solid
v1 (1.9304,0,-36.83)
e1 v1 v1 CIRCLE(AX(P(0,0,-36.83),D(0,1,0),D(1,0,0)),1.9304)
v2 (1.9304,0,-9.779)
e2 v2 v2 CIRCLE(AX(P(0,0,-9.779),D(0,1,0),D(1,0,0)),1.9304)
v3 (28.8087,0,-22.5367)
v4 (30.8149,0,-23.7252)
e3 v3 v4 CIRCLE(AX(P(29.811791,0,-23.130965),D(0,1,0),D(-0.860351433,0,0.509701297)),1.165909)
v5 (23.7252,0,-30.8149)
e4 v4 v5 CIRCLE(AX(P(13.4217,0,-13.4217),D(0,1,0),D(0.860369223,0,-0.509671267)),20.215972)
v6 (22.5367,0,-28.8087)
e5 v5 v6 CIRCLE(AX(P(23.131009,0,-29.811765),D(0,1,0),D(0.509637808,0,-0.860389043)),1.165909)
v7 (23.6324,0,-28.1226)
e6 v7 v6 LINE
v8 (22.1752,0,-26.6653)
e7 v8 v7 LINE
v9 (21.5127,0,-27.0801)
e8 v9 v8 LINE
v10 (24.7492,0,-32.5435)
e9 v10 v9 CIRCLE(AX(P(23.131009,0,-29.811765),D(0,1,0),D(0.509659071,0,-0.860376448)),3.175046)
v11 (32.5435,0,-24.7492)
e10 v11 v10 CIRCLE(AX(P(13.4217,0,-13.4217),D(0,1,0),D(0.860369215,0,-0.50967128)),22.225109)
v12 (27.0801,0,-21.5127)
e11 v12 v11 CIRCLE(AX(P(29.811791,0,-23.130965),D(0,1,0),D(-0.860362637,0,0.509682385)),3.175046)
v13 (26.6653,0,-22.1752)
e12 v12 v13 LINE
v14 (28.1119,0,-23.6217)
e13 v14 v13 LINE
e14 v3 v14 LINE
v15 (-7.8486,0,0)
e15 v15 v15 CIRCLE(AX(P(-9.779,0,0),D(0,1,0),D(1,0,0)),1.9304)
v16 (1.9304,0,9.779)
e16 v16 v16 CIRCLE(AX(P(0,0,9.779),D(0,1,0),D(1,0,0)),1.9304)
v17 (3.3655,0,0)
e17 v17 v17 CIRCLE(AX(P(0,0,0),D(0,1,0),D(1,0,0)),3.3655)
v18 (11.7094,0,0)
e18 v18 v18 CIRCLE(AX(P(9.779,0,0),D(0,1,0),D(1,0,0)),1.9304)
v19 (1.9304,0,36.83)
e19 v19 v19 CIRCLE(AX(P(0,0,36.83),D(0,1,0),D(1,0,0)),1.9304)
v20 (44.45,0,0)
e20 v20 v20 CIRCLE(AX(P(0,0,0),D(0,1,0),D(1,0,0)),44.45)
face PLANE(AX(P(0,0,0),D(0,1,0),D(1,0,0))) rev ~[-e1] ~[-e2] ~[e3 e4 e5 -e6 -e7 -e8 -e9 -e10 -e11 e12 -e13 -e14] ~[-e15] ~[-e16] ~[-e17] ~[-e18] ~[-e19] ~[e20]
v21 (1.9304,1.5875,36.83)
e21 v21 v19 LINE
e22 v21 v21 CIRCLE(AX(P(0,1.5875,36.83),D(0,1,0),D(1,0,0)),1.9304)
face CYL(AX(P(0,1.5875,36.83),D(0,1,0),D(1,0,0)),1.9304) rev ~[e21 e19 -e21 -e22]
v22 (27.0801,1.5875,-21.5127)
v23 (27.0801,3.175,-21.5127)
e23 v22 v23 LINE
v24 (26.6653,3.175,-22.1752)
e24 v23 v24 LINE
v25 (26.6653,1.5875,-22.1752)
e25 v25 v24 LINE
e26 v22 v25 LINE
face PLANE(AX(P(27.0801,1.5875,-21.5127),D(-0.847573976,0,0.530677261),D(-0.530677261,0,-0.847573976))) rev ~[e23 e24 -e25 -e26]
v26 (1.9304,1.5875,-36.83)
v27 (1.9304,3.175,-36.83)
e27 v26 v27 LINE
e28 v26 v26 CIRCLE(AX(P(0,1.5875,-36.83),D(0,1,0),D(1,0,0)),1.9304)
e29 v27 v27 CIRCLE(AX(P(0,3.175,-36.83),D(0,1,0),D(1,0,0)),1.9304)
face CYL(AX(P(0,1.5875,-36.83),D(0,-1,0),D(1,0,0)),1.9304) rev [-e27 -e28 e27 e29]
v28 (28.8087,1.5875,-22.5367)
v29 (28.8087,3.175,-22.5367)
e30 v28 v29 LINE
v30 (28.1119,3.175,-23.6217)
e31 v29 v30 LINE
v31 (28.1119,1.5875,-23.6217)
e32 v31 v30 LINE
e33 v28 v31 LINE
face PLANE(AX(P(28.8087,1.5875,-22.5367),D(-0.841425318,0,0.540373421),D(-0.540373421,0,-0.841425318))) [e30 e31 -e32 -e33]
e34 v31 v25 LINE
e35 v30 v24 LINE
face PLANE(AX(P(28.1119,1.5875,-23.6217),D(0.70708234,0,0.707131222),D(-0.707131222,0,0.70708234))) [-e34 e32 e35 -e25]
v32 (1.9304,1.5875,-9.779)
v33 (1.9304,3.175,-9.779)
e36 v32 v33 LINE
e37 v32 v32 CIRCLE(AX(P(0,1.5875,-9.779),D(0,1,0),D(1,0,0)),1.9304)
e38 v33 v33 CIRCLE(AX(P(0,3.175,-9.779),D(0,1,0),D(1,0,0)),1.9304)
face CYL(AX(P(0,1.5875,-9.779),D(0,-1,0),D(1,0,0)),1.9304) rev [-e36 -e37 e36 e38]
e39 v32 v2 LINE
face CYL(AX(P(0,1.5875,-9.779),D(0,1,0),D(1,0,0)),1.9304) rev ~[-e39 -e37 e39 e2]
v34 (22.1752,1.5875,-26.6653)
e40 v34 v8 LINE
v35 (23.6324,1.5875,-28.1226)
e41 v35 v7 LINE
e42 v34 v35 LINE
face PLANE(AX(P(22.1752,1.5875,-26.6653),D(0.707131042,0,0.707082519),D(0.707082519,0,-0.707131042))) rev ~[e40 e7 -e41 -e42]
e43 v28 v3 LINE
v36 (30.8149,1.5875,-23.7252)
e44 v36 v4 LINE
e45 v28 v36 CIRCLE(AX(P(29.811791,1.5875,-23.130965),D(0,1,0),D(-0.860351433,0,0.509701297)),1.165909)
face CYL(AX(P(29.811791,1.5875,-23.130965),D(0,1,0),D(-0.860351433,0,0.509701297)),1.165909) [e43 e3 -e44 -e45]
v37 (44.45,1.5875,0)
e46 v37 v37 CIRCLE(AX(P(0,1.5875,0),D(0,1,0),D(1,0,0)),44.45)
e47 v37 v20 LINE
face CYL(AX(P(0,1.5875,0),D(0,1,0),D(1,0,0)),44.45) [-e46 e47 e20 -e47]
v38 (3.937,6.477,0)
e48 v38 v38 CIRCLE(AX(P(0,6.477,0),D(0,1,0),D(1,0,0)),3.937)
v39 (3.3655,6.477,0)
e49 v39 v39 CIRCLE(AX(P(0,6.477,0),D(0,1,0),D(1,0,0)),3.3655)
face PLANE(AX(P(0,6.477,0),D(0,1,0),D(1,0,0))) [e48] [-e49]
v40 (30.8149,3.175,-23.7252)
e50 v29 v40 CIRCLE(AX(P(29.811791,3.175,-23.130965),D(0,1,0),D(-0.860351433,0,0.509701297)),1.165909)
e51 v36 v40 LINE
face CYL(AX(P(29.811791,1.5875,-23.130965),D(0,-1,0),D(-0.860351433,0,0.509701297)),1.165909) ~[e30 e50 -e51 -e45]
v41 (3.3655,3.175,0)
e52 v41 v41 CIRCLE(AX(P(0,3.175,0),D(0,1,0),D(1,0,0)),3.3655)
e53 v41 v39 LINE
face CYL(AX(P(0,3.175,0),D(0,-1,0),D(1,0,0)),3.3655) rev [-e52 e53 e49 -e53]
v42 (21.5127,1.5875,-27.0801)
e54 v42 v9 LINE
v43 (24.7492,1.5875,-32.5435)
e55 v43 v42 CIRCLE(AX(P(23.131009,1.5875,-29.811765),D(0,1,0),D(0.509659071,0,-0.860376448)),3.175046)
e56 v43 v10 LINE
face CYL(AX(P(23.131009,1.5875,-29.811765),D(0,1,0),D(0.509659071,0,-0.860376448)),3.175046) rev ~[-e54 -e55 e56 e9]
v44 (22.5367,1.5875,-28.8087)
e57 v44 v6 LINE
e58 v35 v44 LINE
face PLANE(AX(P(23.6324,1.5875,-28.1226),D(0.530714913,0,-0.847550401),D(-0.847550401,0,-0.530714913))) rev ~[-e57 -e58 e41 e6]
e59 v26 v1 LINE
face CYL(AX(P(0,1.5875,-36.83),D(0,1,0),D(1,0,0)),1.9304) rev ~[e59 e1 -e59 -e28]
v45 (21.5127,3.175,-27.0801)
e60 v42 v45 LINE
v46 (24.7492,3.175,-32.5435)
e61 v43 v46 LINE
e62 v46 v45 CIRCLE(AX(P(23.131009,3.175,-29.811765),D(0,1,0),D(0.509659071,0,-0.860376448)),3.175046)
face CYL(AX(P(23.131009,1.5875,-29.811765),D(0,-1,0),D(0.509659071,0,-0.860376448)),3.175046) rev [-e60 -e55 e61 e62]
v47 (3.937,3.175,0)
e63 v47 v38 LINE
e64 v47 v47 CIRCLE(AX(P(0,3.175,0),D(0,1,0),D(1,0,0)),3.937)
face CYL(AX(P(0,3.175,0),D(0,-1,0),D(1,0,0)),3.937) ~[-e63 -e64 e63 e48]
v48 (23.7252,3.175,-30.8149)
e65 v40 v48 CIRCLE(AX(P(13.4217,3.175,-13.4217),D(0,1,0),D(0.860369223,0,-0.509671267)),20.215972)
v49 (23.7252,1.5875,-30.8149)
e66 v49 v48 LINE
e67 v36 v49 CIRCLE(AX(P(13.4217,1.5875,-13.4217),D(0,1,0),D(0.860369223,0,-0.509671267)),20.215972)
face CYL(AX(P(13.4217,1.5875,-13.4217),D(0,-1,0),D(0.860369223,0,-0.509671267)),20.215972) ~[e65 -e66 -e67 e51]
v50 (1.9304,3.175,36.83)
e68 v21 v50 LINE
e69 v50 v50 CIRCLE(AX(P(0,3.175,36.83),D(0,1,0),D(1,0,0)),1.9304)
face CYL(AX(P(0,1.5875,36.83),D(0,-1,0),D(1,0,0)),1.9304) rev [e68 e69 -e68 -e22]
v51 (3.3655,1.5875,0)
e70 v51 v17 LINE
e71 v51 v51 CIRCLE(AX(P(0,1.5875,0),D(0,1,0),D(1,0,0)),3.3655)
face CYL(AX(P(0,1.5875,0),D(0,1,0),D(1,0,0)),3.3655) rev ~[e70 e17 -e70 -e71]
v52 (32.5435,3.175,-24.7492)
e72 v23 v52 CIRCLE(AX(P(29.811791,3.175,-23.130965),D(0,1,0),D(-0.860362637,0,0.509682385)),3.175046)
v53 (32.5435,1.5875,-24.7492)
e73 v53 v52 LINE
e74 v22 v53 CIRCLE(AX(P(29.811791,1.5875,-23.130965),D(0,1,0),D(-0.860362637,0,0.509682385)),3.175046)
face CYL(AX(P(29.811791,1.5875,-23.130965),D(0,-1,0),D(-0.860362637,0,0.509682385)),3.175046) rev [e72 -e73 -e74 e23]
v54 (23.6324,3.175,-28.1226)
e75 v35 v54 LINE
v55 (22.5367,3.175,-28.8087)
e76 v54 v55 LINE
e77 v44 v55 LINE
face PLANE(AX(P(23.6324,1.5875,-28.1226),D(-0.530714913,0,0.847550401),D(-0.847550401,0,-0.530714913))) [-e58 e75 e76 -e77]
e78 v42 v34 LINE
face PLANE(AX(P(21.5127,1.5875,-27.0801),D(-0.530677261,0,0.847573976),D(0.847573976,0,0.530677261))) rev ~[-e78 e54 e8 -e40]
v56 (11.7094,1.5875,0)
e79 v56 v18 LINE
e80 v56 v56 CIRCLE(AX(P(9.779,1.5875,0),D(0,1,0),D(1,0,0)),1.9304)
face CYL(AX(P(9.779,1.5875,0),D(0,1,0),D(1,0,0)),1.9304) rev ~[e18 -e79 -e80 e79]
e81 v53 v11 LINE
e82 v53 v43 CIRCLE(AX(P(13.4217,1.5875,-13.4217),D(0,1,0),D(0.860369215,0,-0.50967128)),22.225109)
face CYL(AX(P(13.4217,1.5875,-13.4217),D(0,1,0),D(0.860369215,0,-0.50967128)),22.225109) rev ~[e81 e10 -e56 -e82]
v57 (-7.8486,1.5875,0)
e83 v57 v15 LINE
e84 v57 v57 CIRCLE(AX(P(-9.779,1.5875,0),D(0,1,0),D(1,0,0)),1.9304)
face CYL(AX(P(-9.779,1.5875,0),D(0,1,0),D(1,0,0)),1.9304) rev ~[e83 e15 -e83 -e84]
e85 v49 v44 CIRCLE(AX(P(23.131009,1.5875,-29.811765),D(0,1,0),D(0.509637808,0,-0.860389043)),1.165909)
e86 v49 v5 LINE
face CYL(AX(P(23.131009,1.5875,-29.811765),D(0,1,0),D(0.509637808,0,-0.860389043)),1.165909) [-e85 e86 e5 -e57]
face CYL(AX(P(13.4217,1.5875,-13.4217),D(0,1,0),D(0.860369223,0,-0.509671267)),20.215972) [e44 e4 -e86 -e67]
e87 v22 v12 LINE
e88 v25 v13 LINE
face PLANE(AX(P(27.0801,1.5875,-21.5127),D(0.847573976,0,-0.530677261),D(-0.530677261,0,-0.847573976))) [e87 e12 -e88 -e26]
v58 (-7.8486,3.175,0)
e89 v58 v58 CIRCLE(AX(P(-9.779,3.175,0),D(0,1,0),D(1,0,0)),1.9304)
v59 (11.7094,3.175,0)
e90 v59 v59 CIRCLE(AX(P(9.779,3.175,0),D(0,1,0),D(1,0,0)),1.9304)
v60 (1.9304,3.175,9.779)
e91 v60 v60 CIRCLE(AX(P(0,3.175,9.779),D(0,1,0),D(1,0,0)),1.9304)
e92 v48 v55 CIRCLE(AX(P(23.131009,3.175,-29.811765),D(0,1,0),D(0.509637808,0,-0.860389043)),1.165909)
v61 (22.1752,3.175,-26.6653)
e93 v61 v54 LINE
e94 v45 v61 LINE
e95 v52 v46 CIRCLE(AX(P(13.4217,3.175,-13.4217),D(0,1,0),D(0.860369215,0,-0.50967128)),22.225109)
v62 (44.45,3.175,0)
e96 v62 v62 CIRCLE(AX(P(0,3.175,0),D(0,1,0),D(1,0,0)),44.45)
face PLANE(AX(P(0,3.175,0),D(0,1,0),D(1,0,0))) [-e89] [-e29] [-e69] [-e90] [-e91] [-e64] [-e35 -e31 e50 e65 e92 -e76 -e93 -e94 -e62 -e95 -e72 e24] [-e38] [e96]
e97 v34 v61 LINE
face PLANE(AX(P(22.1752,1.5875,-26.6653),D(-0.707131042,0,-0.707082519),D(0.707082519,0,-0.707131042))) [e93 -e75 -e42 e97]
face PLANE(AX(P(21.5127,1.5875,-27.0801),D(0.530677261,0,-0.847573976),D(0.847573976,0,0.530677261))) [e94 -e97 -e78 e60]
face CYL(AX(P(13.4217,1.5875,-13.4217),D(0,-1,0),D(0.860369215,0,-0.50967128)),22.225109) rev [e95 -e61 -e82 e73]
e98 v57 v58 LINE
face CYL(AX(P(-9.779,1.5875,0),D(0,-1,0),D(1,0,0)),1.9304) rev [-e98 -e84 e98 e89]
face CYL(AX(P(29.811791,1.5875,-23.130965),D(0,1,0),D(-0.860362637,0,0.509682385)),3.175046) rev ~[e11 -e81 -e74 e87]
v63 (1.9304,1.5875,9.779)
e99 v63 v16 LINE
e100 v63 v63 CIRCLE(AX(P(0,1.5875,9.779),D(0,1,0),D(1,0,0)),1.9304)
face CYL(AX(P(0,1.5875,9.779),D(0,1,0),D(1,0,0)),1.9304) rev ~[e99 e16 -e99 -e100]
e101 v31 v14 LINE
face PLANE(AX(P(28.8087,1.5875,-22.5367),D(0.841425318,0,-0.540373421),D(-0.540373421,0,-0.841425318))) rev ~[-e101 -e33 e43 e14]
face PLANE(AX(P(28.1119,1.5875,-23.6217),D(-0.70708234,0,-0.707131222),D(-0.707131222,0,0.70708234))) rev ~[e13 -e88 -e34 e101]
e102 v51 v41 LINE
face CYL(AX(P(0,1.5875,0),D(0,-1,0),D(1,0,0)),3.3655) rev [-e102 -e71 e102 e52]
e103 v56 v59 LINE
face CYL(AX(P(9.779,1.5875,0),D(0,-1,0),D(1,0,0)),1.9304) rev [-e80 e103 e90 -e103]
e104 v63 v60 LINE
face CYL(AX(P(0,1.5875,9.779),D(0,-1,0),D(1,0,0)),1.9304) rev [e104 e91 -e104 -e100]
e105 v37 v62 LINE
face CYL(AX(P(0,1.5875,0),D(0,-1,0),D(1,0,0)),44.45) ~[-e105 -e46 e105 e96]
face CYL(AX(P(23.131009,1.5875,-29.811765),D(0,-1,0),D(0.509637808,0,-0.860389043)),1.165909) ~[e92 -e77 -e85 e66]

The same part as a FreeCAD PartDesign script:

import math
import FreeCAD as App
import Part
import Sketcher
Q = App.Units.Quantity

doc = App.newDocument("Part")
body = doc.addObject("PartDesign::Body", "Body")

sketch1 = body.newObject("Sketcher::SketchObject", "Sketch")
sketch1.AttachmentSupport = (doc.getObject("XZ_Plane"), [""])
sketch1.MapMode = "FlatFace"
sketch1.AttachmentOffset = App.Placement(App.Vector(0, 0, -0.0625 * 25.4), App.Rotation())
sketch1.addGeometry([
    Part.Circle(App.Vector(0, 0, 0), App.Vector(0, 0, 1), 44.45),
    Part.Circle(App.Vector(0, 36.83, 0), App.Vector(0, 0, 1), 1.9304),
    Part.Circle(App.Vector(0, 9.779, 0), App.Vector(0, 0, 1), 1.9304),
    Part.Circle(App.Vector(-9.779, 0, 0), App.Vector(0, 0, 1), 1.9304),
    Part.Circle(App.Vector(0, 0, 0), App.Vector(0, 0, 1), 3.3655),
    Part.Circle(App.Vector(9.779, 0, 0), App.Vector(0, 0, 1), 1.9304),
    Part.Circle(App.Vector(0, -9.779, 0), App.Vector(0, 0, 1), 1.9304),
    Part.Circle(App.Vector(0, -36.83, 0), App.Vector(0, 0, 1), 1.9304),
    Part.LineSegment(App.Vector(28.1119, -23.6217, 0), App.Vector(28.8087, -22.5367, 0)),
    Part.ArcOfCircle(Part.Circle(App.Vector(29.8118, -23.131, 0), App.Vector(0, 0, 1), 1.165934), math.radians(-30.64096), math.radians(149.354812)),
    Part.ArcOfCircle(Part.Circle(App.Vector(13.4217, -13.4217, 0), App.Vector(0, 0, 1), 20.215972), math.radians(-59.358064), math.radians(-30.641936)),
    Part.ArcOfCircle(Part.Circle(App.Vector(23.131, -29.8118, 0), App.Vector(0, 0, 1), 1.165883), math.radians(120.645188), math.radians(300.64096)),
    Part.LineSegment(App.Vector(22.5367, -28.8087, 0), App.Vector(23.6324, -28.1226, 0)),
    Part.LineSegment(App.Vector(23.6324, -28.1226, 0), App.Vector(22.1752, -26.6653, 0)),
    Part.LineSegment(App.Vector(22.1752, -26.6653, 0), App.Vector(21.5127, -27.0801, 0)),
    Part.ArcOfCircle(Part.Circle(App.Vector(23.131, -29.8118, 0), App.Vector(0, 0, 1), 3.175021), math.radians(120.643136), math.radians(300.641583)),
    Part.ArcOfCircle(Part.Circle(App.Vector(13.4217, -13.4217, 0), App.Vector(0, 0, 1), 22.225109), math.radians(-59.358064), math.radians(-30.641936)),
    Part.ArcOfCircle(Part.Circle(App.Vector(29.8118, -23.131, 0), App.Vector(0, 0, 1), 3.175072), math.radians(-30.641583), math.radians(149.356864)),
    Part.LineSegment(App.Vector(27.0801, -21.5127, 0), App.Vector(26.6653, -22.1752, 0)),
    Part.LineSegment(App.Vector(26.6653, -22.1752, 0), App.Vector(28.1119, -23.6217, 0)),
], False)
sketch1.addConstraint([
    Sketcher.Constraint("Coincident", 8, 2, 9, 2),
    Sketcher.Constraint("Coincident", 9, 1, 10, 2),
    Sketcher.Constraint("Coincident", 10, 1, 11, 2),
    Sketcher.Constraint("Coincident", 11, 1, 12, 1),
    Sketcher.Constraint("Coincident", 12, 2, 13, 1),
    Sketcher.Constraint("Coincident", 13, 2, 14, 1),
    Sketcher.Constraint("Coincident", 14, 2, 15, 1),
    Sketcher.Constraint("Coincident", 15, 2, 16, 1),
    Sketcher.Constraint("Coincident", 16, 2, 17, 1),
    Sketcher.Constraint("Coincident", 17, 2, 18, 1),
    Sketcher.Constraint("Coincident", 18, 2, 19, 1),
    Sketcher.Constraint("Coincident", 19, 2, 8, 1),
    Sketcher.Constraint("Coincident", 0, 3, -1, 1),
    Sketcher.Constraint("Coincident", 4, 3, -1, 1),
    Sketcher.Constraint("Coincident", 15, 3, 11, 3),
    Sketcher.Constraint("Coincident", 16, 3, 10, 3),
    Sketcher.Constraint("Coincident", 17, 3, 9, 3),
    Sketcher.Constraint("PointOnObject", 1, 3, -2),
    Sketcher.Constraint("PointOnObject", 2, 3, -2),
    Sketcher.Constraint("PointOnObject", 3, 3, -1),
    Sketcher.Constraint("PointOnObject", 5, 3, -1),
    Sketcher.Constraint("PointOnObject", 6, 3, -2),
    Sketcher.Constraint("PointOnObject", 7, 3, -2),
    Sketcher.Constraint("Diameter", 0, Q("3.5 in")),
    Sketcher.Constraint("Diameter", 1, Q("0.152 in")),
    Sketcher.Constraint("Diameter", 2, Q("0.152 in")),
    Sketcher.Constraint("Diameter", 3, Q("0.152 in")),
    Sketcher.Constraint("Diameter", 4, Q("0.265 in")),
    Sketcher.Constraint("Diameter", 5, Q("0.152 in")),
    Sketcher.Constraint("Diameter", 6, Q("0.152 in")),
    Sketcher.Constraint("Diameter", 7, Q("0.152 in")),
    Sketcher.Constraint("DistanceY", -1, 1, 1, 3, Q("1.45 in")),
    Sketcher.Constraint("DistanceY", 7, 3, -1, 1, Q("1.45 in")),
    Sketcher.Constraint("Radius", 15, Q("0.125 in")),
    Sketcher.Constraint("Radius", 16, Q("0.875 in")),
    Sketcher.Constraint("Radius", 17, Q("0.125 in")),
    Sketcher.Constraint("Radius", 9, Q("0.0459 in")),
    Sketcher.Constraint("DistanceY", 19, 2, -1, 1, Q("0.93 in")),
    Sketcher.Constraint("DistanceX", 3, 3, 5, 3, Q("0.77 in")),
    Sketcher.Constraint("DistanceY", 6, 3, 2, 3, Q("0.77 in")),
    Sketcher.Constraint("DistanceY", -1, 1, 2, 3, Q("0.385 in")),
    Sketcher.Constraint("DistanceX", 3, 3, -1, 1, Q("0.385 in")),
    Sketcher.Constraint("DistanceY", 10, 1, 12, 2, Q("0.106 in")),
    Sketcher.Constraint("Distance", 12, Q("0.0509 in")),
    Sketcher.Constraint("DistanceX", -1, 1, 9, 3, Q("1.1737 in")),
    Sketcher.Constraint("DistanceY", 11, 3, -1, 1, Q("1.1737 in")),
    Sketcher.Constraint("DistanceX", -1, 1, 8, 2, Q("1.1342 in")),
    Sketcher.Constraint("DistanceY", 11, 1, -1, 1, Q("1.1342 in")),
    Sketcher.Constraint("DistanceX", -1, 1, 12, 2, Q("0.9304 in")),
    Sketcher.Constraint("DistanceY", 12, 2, -1, 1, Q("1.1072 in")),
    Sketcher.Constraint("DistanceX", 9, 3, 9, 1, Q("0.0395 in")),
    Sketcher.Constraint("DistanceX", 11, 3, 15, 2, Q("0.0637 in")),
    Sketcher.Constraint("DistanceY", 16, 2, 9, 3, Q("0.0637 in")),
    Sketcher.Constraint("DistanceY", 12, 2, 16, 2, Q("0.1328 in")),
    Sketcher.Constraint("DistanceY", 9, 1, 17, 2, Q("0.0871 in")),
    Sketcher.Constraint("Distance", 8, 1.2895),
    Sketcher.Constraint("Distance", 13, 2.0609),
    Sketcher.Constraint("Distance", 14, 0.7816),
    Sketcher.Constraint("Distance", 18, 0.7816),
    Sketcher.Constraint("Distance", 19, 2.0457),
    Sketcher.Constraint("DistanceX", -1, 1, 13, 2, 22.1752),
])
pad1 = body.newObject("PartDesign::Pad", "Pad")
pad1.Profile = sketch1
pad1.Length = Q("0.125 in")
pad1.Midplane = True

sketch2 = body.newObject("Sketcher::SketchObject", "Sketch001")
sketch2.AttachmentSupport = (doc.getObject("XZ_Plane"), [""])
sketch2.MapMode = "FlatFace"
sketch2.AttachmentOffset = App.Placement(App.Vector(0, 0, -0.125 * 25.4), App.Rotation())
sketch2.addGeometry([
    Part.Circle(App.Vector(0, 0, 0), App.Vector(0, 0, 1), 3.937),
    Part.Circle(App.Vector(0, 0, 0), App.Vector(0, 0, 1), 3.3655),
], False)
sketch2.addConstraint([
    Sketcher.Constraint("Coincident", 0, 3, -1, 1),
    Sketcher.Constraint("Coincident", 1, 3, -1, 1),
    Sketcher.Constraint("Diameter", 0, Q("0.31 in")),
    Sketcher.Constraint("Diameter", 1, Q("0.265 in")),
])
pad2 = body.newObject("PartDesign::Pad", "Pad001")
pad2.Profile = sketch2
pad2.Length = Q("0.13 in")
pad2.Reversed = True

doc.recompute()
